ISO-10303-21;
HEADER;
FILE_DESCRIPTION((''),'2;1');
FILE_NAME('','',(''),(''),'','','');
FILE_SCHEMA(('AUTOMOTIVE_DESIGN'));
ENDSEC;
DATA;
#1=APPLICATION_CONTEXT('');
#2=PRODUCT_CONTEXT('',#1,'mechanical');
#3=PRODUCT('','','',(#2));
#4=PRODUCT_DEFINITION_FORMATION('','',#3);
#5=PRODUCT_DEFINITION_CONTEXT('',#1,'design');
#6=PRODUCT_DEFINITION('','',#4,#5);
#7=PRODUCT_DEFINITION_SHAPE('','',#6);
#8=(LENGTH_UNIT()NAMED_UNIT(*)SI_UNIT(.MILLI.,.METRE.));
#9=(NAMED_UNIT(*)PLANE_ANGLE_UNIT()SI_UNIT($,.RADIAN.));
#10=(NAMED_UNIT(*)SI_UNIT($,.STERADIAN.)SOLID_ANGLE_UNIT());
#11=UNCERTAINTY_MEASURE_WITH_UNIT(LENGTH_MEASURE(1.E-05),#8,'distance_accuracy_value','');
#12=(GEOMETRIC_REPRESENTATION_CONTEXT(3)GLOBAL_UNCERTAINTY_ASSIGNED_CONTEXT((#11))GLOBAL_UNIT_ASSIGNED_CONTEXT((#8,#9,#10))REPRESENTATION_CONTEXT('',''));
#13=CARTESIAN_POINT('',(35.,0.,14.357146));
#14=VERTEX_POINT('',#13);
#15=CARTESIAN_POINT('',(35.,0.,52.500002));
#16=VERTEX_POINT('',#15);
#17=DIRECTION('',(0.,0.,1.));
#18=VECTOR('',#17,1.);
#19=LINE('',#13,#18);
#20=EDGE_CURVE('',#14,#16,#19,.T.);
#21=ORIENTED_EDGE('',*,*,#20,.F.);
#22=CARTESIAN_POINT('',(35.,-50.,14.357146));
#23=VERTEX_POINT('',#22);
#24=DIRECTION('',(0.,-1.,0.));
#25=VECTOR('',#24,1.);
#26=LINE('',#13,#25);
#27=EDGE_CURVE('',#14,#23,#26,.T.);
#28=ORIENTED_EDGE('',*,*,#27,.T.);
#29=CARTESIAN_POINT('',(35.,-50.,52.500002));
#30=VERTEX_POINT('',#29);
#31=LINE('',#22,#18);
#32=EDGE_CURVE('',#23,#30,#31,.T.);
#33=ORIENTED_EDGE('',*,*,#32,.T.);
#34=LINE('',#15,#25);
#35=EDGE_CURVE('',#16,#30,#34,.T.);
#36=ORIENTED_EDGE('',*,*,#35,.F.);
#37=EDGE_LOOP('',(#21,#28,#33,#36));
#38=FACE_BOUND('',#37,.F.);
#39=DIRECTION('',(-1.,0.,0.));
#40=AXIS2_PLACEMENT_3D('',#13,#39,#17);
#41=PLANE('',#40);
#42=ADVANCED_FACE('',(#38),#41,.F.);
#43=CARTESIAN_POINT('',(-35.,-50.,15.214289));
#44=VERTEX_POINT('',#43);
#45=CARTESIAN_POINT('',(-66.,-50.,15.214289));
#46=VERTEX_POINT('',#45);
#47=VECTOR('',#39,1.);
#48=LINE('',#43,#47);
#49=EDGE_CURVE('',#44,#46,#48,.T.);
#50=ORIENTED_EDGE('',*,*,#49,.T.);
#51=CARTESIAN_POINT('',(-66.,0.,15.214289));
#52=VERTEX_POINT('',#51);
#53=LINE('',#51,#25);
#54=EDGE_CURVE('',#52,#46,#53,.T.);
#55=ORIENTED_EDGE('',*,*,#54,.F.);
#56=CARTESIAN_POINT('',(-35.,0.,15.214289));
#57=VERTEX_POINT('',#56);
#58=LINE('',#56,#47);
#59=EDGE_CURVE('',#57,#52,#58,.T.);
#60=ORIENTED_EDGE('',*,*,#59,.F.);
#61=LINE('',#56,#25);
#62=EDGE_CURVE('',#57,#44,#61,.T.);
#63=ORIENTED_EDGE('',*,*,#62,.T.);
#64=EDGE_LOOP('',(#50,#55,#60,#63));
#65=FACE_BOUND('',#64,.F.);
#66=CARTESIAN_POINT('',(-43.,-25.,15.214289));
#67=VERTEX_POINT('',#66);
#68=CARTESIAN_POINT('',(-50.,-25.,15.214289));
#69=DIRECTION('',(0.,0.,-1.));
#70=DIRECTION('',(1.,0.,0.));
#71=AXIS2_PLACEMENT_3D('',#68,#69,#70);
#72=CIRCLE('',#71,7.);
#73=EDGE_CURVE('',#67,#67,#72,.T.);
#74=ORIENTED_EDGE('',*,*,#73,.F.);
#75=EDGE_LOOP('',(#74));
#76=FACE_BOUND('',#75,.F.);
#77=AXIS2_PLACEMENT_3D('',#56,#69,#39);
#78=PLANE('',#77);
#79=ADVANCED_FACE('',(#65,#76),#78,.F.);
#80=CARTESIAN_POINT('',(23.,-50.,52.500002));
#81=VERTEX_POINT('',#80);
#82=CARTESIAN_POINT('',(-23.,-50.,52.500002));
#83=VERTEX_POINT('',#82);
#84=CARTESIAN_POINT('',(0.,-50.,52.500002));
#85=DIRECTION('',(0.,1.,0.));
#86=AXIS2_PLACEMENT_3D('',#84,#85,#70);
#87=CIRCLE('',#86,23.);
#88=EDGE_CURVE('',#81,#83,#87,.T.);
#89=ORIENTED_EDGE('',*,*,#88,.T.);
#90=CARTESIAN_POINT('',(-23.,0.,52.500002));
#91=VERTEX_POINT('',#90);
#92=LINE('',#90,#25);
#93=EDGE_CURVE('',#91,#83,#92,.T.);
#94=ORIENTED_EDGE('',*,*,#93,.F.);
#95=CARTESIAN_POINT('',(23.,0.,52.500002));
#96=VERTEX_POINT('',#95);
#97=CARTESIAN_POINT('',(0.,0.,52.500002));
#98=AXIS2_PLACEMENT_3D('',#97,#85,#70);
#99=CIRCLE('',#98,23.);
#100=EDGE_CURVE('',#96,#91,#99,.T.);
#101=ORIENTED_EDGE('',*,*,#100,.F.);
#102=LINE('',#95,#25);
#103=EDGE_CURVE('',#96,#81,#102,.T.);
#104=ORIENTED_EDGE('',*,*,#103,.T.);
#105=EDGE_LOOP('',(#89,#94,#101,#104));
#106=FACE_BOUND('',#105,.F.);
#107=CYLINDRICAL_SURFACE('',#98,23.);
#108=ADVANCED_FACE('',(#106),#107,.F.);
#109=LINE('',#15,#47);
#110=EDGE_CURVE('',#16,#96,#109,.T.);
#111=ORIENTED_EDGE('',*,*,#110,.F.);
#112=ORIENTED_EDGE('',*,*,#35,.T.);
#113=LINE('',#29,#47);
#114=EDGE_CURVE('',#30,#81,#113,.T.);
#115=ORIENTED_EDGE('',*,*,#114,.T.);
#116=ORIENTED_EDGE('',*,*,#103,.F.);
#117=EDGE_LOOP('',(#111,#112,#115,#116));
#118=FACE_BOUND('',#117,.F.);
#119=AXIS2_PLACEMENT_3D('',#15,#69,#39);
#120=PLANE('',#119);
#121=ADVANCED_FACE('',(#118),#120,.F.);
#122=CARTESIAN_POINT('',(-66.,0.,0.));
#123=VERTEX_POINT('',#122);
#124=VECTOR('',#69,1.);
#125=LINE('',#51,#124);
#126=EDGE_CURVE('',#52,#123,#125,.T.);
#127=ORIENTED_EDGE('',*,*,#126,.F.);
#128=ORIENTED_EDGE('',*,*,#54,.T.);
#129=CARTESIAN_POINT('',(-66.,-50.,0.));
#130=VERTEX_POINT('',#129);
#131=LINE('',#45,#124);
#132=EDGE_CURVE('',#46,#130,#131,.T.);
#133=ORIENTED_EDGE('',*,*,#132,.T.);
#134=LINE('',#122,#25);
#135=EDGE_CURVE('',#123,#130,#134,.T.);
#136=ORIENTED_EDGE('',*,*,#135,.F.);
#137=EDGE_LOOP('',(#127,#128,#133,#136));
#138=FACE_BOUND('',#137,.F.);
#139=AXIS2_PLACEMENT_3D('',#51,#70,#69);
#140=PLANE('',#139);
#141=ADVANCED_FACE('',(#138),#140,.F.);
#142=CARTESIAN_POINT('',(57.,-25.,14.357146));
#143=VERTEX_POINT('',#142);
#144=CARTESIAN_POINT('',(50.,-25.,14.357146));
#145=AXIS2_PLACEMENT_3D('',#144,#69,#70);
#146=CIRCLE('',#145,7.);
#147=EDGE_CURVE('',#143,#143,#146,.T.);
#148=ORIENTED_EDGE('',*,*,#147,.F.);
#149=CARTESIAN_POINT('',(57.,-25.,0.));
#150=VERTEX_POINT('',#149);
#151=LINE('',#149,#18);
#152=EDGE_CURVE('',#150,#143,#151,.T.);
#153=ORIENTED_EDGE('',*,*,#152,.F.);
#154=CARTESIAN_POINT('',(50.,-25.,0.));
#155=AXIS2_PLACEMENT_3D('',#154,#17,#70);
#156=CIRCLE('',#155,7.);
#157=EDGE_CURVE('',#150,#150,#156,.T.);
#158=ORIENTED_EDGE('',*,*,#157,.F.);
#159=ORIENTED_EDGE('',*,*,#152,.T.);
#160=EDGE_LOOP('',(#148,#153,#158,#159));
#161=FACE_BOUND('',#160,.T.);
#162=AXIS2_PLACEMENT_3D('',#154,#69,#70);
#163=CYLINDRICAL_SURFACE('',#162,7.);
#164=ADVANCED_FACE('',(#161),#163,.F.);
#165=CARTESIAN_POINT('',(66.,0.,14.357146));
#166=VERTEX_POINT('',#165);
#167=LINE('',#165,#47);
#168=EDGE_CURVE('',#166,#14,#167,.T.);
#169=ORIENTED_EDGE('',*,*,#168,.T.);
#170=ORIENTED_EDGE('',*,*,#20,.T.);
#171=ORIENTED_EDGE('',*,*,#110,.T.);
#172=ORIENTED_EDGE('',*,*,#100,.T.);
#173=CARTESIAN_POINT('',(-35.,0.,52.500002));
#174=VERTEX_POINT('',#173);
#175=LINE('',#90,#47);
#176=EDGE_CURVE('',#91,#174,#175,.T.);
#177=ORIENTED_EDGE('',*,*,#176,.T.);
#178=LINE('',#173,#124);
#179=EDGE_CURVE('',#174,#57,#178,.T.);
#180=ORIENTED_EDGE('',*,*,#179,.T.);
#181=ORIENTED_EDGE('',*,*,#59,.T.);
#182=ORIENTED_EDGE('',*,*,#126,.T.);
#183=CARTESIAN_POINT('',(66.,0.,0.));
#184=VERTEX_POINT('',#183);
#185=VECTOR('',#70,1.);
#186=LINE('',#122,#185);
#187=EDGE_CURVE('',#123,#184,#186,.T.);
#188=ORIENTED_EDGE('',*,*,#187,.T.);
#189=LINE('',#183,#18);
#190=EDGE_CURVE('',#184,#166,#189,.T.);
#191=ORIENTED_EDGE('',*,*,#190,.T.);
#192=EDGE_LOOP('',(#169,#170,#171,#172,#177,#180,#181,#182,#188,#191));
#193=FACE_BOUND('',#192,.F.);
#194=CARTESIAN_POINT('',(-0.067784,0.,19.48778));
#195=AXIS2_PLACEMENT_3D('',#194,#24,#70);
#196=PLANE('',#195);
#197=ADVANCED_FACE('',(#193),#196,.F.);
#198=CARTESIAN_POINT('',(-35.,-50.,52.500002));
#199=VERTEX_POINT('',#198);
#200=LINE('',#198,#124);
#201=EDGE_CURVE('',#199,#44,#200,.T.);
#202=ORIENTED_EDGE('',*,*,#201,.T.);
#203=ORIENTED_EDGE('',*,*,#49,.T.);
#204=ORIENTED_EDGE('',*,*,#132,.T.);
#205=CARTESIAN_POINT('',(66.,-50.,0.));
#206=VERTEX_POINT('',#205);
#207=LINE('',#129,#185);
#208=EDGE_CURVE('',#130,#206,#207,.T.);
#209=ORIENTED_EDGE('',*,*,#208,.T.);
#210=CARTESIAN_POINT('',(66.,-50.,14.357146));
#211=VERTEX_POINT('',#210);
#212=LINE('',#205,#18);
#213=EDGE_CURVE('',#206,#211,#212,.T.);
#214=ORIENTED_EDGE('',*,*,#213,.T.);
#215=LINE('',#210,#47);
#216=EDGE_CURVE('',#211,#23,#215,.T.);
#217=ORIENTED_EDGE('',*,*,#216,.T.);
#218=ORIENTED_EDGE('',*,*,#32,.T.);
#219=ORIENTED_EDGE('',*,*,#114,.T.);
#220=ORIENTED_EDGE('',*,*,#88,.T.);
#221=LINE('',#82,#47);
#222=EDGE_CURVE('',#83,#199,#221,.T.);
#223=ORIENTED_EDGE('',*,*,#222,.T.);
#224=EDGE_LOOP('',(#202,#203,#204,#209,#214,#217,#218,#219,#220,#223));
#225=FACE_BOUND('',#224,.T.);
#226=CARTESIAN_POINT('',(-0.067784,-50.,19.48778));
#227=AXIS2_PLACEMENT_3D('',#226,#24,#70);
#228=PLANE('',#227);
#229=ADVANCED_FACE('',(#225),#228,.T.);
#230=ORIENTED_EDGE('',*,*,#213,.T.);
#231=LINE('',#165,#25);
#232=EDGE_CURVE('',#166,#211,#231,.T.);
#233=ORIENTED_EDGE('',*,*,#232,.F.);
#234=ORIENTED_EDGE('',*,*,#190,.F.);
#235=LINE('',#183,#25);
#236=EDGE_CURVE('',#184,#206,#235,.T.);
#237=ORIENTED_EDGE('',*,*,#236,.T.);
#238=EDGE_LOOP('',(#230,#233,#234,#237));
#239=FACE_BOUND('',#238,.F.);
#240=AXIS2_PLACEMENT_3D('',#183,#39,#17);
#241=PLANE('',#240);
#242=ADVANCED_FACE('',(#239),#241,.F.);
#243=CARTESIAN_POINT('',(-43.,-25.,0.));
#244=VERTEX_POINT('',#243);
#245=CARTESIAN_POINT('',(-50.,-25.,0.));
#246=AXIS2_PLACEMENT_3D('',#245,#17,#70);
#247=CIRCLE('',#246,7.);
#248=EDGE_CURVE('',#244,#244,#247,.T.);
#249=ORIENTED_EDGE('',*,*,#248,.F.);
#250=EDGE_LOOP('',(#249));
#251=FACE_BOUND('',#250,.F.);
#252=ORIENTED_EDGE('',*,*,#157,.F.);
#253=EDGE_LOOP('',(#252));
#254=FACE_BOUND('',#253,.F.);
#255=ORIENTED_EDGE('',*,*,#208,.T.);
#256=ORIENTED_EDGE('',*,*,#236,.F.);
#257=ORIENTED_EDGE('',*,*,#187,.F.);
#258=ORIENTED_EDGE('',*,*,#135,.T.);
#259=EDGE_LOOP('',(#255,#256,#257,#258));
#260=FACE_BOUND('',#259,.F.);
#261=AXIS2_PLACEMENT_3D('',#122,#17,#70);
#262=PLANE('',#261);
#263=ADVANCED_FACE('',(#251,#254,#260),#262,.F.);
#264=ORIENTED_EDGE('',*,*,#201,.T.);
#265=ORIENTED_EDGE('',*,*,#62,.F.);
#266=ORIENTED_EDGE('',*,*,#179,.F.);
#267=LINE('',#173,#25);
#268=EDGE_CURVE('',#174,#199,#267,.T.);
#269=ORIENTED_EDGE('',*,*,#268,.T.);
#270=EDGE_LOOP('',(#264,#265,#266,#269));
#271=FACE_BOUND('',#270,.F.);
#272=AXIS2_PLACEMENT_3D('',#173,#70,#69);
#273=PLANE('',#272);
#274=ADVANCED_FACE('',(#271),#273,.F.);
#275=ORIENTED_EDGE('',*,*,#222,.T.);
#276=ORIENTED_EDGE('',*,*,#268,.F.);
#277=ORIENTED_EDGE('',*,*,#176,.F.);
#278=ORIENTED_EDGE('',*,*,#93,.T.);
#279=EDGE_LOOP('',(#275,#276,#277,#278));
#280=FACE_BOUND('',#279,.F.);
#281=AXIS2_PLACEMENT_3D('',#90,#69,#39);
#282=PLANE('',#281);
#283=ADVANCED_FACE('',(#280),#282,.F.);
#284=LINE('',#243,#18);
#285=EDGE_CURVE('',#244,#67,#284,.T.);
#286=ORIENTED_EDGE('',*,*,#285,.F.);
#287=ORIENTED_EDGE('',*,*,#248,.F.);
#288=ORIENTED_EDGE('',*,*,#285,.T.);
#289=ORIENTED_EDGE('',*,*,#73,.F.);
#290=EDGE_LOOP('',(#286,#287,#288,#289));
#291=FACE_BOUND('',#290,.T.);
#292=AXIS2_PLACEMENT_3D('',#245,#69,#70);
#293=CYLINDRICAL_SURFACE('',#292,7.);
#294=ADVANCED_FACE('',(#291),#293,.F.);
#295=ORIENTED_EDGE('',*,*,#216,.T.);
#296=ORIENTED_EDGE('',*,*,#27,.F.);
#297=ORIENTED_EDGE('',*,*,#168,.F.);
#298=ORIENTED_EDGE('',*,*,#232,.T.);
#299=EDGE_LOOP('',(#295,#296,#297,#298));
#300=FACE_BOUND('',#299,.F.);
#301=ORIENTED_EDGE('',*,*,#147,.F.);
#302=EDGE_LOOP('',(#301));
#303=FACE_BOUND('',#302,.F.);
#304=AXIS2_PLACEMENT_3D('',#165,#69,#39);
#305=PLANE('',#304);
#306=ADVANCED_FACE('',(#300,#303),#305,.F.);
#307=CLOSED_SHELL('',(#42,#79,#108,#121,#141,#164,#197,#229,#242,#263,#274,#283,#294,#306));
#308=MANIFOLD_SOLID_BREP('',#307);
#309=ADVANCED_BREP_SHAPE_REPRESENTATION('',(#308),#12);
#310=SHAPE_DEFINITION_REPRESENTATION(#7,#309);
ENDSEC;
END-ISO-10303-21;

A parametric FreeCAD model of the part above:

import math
import FreeCAD as App
import Part
import Sketcher
from FreeCAD import Vector

doc = App.newDocument("Part")
params = doc.addObject("Spreadsheet::Sheet", "Params")
for row, (alias, value) in enumerate([
    ("sketch1_radius", "23 mm"),
    ("sketch1_width", "132 mm"),
    ("sketch1_width2", "31 mm"),
    ("pad1_length", "50 mm"),
    ("sketch2_diameter", "14 mm"),
    ("pocket1_length", "25 mm"),
], start=1):
    params.set(f"A{row}", alias)
    params.set(f"B{row}", "=" + value)
    params.setAlias(f"B{row}", alias)

body = doc.addObject("PartDesign::Body", "Body")

# Sketch on XZ plane
sketch1 = doc.addObject("Sketcher::SketchObject", "Sketch")
body.addObject(sketch1)
sketch1.AttachmentSupport = (doc.XZ_Plane, [""])
sketch1.MapMode = "FlatFace"
sketch1.addGeometry([
    Part.LineSegment(Vector(-66, 0, 0), Vector(66, 0, 0)),  # 0
    Part.LineSegment(Vector(66, 0, 0), Vector(66, 14, 0)),  # 1
    Part.LineSegment(Vector(66, 14, 0), Vector(35, 14, 0)),  # 2
    Part.LineSegment(Vector(35, 14, 0), Vector(35, 53, 0)),  # 3
    Part.LineSegment(Vector(35, 53, 0), Vector(23, 53, 0)),  # 4
    Part.ArcOfCircle(Part.Circle(Vector(0, 53, 0), Vector(0, 0, 1), 23), math.radians(180), math.radians(360)),  # 5
    Part.LineSegment(Vector(-23, 53, 0), Vector(-35, 53, 0)),  # 6
    Part.LineSegment(Vector(-35, 53, 0), Vector(-35, 15, 0)),  # 7
    Part.LineSegment(Vector(-35, 15, 0), Vector(-66, 15, 0)),  # 8
    Part.LineSegment(Vector(-66, 15, 0), Vector(-66, 0, 0)),  # 9
], False)
sketch1.addConstraint([
    Sketcher.Constraint("Coincident", 0, 2, 1, 1),
    Sketcher.Constraint("Coincident", 1, 2, 2, 1),
    Sketcher.Constraint("Coincident", 2, 2, 3, 1),
    Sketcher.Constraint("Coincident", 3, 2, 4, 1),
    Sketcher.Constraint("Coincident", 4, 2, 5, 2),
    Sketcher.Constraint("Coincident", 5, 1, 6, 1),
    Sketcher.Constraint("Coincident", 6, 2, 7, 1),
    Sketcher.Constraint("Coincident", 7, 2, 8, 1),
    Sketcher.Constraint("Coincident", 8, 2, 9, 1),
    Sketcher.Constraint("Coincident", 9, 2, 0, 1),
    Sketcher.Constraint("Horizontal", 0),
    Sketcher.Constraint("Vertical", 1),
    Sketcher.Constraint("Horizontal", 2),
    Sketcher.Constraint("Vertical", 3),
    Sketcher.Constraint("Horizontal", 4),
    Sketcher.Constraint("Horizontal", 6),
    Sketcher.Constraint("Vertical", 7),
    Sketcher.Constraint("Horizontal", 8),
    Sketcher.Constraint("Vertical", 9),
    Sketcher.Constraint("Symmetric", 0, 2, 9, 2, -1, 1),
    Sketcher.Constraint("Symmetric", 4, 2, 5, 1, -2),
    Sketcher.Constraint("Horizontal", 5, 3, 3, 2),
    Sketcher.Constraint("Equal", 4, 6),
    Sketcher.Constraint("Radius", 5, 23.0),
    Sketcher.Constraint("DistanceX", 0, 1, 0, 2, 132.0),
    Sketcher.Constraint("DistanceX", 2, 2, 2, 1, 31.0),
    Sketcher.Constraint("DistanceY", 9, 2, 9, 1, 15.214289),
    Sketcher.Constraint("DistanceY", 1, 1, 1, 2, 14.357146),
    Sketcher.Constraint("DistanceY", 3, 1, 3, 2, 38.142856),
])
sketch1.setExpression("Constraints[23]", "Params.sketch1_radius")
sketch1.setExpression("Constraints[24]", "Params.sketch1_width")
sketch1.setExpression("Constraints[25]", "Params.sketch1_width2")
pad1 = doc.addObject("PartDesign::Pad", "Pad")
body.addObject(pad1)
pad1.Profile = sketch1
pad1.setExpression("Length", "Params.pad1_length")

# Sketch on XY plane
sketch2 = doc.addObject("Sketcher::SketchObject", "Sketch001")
body.addObject(sketch2)
sketch2.AttachmentSupport = (doc.XY_Plane, [""])
sketch2.MapMode = "FlatFace"
sketch2.addGeometry([
    Part.Circle(Vector(-50, -25, 0), Vector(0, 0, 1), 7),
    Part.Circle(Vector(50, -25, 0), Vector(0, 0, 1), 7),
], False)
sketch2.addConstraint([
    Sketcher.Constraint("Equal", 0, 1),
    Sketcher.Constraint("Symmetric", 0, 3, 1, 3, -2),
    Sketcher.Constraint("Diameter", 0, 14.0),
    Sketcher.Constraint("DistanceX", 0, 3, -1, 1, 50.0),
    Sketcher.Constraint("DistanceY", 0, 3, -1, 1, 25.0),
])
sketch2.setExpression("Constraints[2]", "Params.sketch2_diameter")
pocket1 = doc.addObject("PartDesign::Pocket", "Pocket")
body.addObject(pocket1)
pocket1.Profile = sketch2
pocket1.setExpression("Length", "Params.pocket1_length")
pocket1.Reversed = True

doc.recompute()
